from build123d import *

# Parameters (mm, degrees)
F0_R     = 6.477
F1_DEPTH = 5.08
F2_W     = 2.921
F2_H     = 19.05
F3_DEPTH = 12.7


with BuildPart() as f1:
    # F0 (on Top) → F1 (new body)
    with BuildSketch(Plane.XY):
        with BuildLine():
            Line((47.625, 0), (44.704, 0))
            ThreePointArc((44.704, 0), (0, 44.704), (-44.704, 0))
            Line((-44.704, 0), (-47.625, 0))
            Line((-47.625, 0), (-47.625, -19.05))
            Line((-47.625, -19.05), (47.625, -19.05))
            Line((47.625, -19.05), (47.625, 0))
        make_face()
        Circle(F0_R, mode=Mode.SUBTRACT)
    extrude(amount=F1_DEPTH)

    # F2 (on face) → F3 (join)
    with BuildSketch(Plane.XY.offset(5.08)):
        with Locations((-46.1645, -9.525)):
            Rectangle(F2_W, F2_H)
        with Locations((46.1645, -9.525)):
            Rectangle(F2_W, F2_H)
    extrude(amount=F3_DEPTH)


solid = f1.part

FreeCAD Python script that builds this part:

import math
import FreeCAD as App
import Part
import Sketcher

V = App.Vector
Q = App.Units.Quantity

doc = App.newDocument("Part")
body = doc.addObject("PartDesign::Body", "Body")

sketch1 = doc.addObject("Sketcher::SketchObject", "Sketch")
body.addObject(sketch1)
sketch1.AttachmentSupport = (doc.XY_Plane, [""])
sketch1.MapMode = "FlatFace"
sketch1.addGeometry([
    Part.LineSegment(V(47.6, 0, 0), V(44.7, 0, 0)),
    Part.ArcOfCircle(Part.Circle(V(0, 0, 0), V(0, 0, 1), 44.7), math.radians(0), math.radians(180)),
    Part.LineSegment(V(-44.7, 0, 0), V(-47.6, 0, 0)),
    Part.LineSegment(V(-47.6, 0, 0), V(-47.6, -19.1, 0)),
    Part.LineSegment(V(-47.6, -19.1, 0), V(47.6, -19.1, 0)),
    Part.LineSegment(V(47.6, -19.1, 0), V(47.6, 0, 0)),
    Part.Circle(V(0, 0, 0), V(0, 0, 1), 6.5),
], False)
sketch1.addConstraint([
    Sketcher.Constraint("Coincident", 0, 2, 1, 1),
    Sketcher.Constraint("Coincident", 1, 2, 2, 1),
    Sketcher.Constraint("Coincident", 2, 2, 3, 1),
    Sketcher.Constraint("Coincident", 3, 2, 4, 1),
    Sketcher.Constraint("Coincident", 4, 2, 5, 1),
    Sketcher.Constraint("Coincident", 5, 2, 0, 1),
    Sketcher.Constraint("Horizontal", 0),
    Sketcher.Constraint("Horizontal", 2),
    Sketcher.Constraint("Vertical", 3),
    Sketcher.Constraint("Horizontal", 4),
    Sketcher.Constraint("Vertical", 5),
    Sketcher.Constraint("Coincident", 1, 3, -1, 1),
    Sketcher.Constraint("Coincident", 6, 3, -1, 1),
    Sketcher.Constraint("Symmetric", 2, 2, 5, 2, -1, 1),
    Sketcher.Constraint("PointOnObject", 0, 2, -1),
    Sketcher.Constraint("Diameter", 6, Q("0.51 in")),
    Sketcher.Constraint("Radius", 1, Q("1.76 in")),
    Sketcher.Constraint("DistanceX", 4, 1, 4, 2, Q("3.75 in")),
    Sketcher.Constraint("DistanceY", 3, 2, 3, 1, Q("0.75 in")),
])
pad1 = doc.addObject("PartDesign::Pad", "Pad")
body.addObject(pad1)
pad1.Profile = sketch1
pad1.Length = Q("0.2 in")

sketch2 = doc.addObject("Sketcher::SketchObject", "Sketch001")
body.addObject(sketch2)
sketch2.AttachmentSupport = (doc.XY_Plane, [""])
sketch2.MapMode = "FlatFace"
sketch2.AttachmentOffset = App.Placement(V(0, 0, 0.2 * 25.4), App.Rotation())
sketch2.addGeometry([
    Part.LineSegment(V(-47.6, 0, 0), V(-47.6, -19.1, 0)),
    Part.LineSegment(V(-47.6, -19.1, 0), V(-44.7, -19.1, 0)),
    Part.LineSegment(V(-44.7, -19.1, 0), V(-44.7, 0, 0)),
    Part.LineSegment(V(-44.7, 0, 0), V(-47.6, 0, 0)),
    Part.LineSegment(V(44.7, 0, 0), V(44.7, -19.1, 0)),
    Part.LineSegment(V(44.7, -19.1, 0), V(47.6, -19.1, 0)),
    Part.LineSegment(V(47.6, -19.1, 0), V(47.6, 0, 0)),
    Part.LineSegment(V(47.6, 0, 0), V(44.7, 0, 0)),
], False)
sketch2.addConstraint([
    Sketcher.Constraint("Coincident", 0, 2, 1, 1),
    Sketcher.Constraint("Coincident", 1, 2, 2, 1),
    Sketcher.Constraint("Coincident", 2, 2, 3, 1),
    Sketcher.Constraint("Coincident", 3, 2, 0, 1),
    Sketcher.Constraint("Coincident", 4, 2, 5, 1),
    Sketcher.Constraint("Coincident", 5, 2, 6, 1),
    Sketcher.Constraint("Coincident", 6, 2, 7, 1),
    Sketcher.Constraint("Coincident", 7, 2, 4, 1),
    Sketcher.Constraint("Vertical", 0),
    Sketcher.Constraint("Horizontal", 1),
    Sketcher.Constraint("Vertical", 2),
    Sketcher.Constraint("Horizontal", 3),
    Sketcher.Constraint("Vertical", 4),
    Sketcher.Constraint("Horizontal", 5),
    Sketcher.Constraint("Vertical", 6),
    Sketcher.Constraint("Horizontal", 7),
    Sketcher.Constraint("Symmetric", 3, 2, 6, 2, -1, 1),
    Sketcher.Constraint("Symmetric", 1, 2, 4, 2, -2),
    Sketcher.Constraint("PointOnObject", 2, 2, -1),
    Sketcher.Constraint("DistanceY", 0, 2, 0, 1, Q("0.75 in")),
    Sketcher.Constraint("DistanceX", 1, 1, 1, 2, Q("0.115 in")),
    Sketcher.Constraint("DistanceX", 1, 2, -1, 1, Q("1.76 in")),
])
pad2 = doc.addObject("PartDesign::Pad", "Pad001")
body.addObject(pad2)
pad2.Profile = sketch2
pad2.Length = Q("0.5 in")

doc.recompute()
